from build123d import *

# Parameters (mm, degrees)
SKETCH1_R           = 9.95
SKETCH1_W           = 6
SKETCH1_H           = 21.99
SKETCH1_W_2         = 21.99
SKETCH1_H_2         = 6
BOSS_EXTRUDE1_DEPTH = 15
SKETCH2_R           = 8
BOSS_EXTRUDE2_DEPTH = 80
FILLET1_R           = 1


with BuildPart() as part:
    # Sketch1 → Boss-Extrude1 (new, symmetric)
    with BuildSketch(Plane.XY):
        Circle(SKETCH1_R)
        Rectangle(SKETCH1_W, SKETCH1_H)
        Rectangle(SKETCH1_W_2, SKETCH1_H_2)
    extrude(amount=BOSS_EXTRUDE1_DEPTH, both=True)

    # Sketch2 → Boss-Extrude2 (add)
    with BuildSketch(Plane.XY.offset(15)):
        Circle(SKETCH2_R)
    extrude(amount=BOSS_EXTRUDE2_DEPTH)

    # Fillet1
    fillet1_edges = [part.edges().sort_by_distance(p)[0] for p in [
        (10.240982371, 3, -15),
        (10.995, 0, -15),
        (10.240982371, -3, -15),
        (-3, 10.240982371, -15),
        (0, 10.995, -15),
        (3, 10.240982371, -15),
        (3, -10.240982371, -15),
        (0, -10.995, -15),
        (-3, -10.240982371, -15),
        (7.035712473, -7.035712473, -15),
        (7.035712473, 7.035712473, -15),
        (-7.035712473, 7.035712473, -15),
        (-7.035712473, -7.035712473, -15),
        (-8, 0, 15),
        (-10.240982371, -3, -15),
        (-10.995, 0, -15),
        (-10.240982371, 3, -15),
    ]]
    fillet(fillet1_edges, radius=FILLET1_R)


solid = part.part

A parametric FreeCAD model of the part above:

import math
import FreeCAD as App
import Part
import Sketcher

V = App.Vector
Q = App.Units.Quantity


def edges_at(feature, points):
    """Names of the edges that pass closest to the given points."""
    edges = feature.Shape.Edges
    near = lambda p: min(range(len(edges)), key=lambda i: edges[i].distToShape(Part.Vertex(*p))[0])
    return sorted({f"Edge{near(p) + 1}" for p in points})

doc = App.newDocument("Part")
body = doc.addObject("PartDesign::Body", "Body")

sketch1 = doc.addObject("Sketcher::SketchObject", "Sketch")
body.addObject(sketch1)
sketch1.AttachmentSupport = (doc.XY_Plane, [""])
sketch1.MapMode = "FlatFace"
sketch1.addGeometry(Part.LineSegment(V(3, -10.995, 0), V(3, -9.486965, 0)), False)
sketch1.addGeometry(Part.ArcOfCircle(Part.Circle(V(0, 0, 0), V(0, 0, 1), 9.95), math.radians(-72.451828), math.radians(-17.548172)), False)
sketch1.addGeometry(Part.LineSegment(V(9.486965, -3, 0), V(10.995, -3, 0)), False)
sketch1.addGeometry(Part.LineSegment(V(10.995, -3, 0), V(10.995, 3, 0)), False)
sketch1.addGeometry(Part.LineSegment(V(10.995, 3, 0), V(9.486965, 3, 0)), False)
sketch1.addGeometry(Part.ArcOfCircle(Part.Circle(V(0, 0, 0), V(0, 0, 1), 9.95), math.radians(17.548172), math.radians(72.451828)), False)
sketch1.addGeometry(Part.LineSegment(V(3, 9.486965, 0), V(3, 10.995, 0)), False)
sketch1.addGeometry(Part.LineSegment(V(3, 10.995, 0), V(-3, 10.995, 0)), False)
sketch1.addGeometry(Part.LineSegment(V(-3, 10.995, 0), V(-3, 9.486965, 0)), False)
sketch1.addGeometry(Part.ArcOfCircle(Part.Circle(V(0, 0, 0), V(0, 0, 1), 9.95), math.radians(107.548172), math.radians(162.451828)), False)
sketch1.addGeometry(Part.LineSegment(V(-9.486965, 3, 0), V(-10.995, 3, 0)), False)
sketch1.addGeometry(Part.LineSegment(V(-10.995, 3, 0), V(-10.995, -3, 0)), False)
sketch1.addGeometry(Part.LineSegment(V(-10.995, -3, 0), V(-9.486965, -3, 0)), False)
sketch1.addGeometry(Part.ArcOfCircle(Part.Circle(V(0, 0, 0), V(0, 0, 1), 9.95), math.radians(-162.451828), math.radians(-107.548172)), False)
sketch1.addGeometry(Part.LineSegment(V(-3, -9.486965, 0), V(-3, -10.995, 0)), False)
sketch1.addGeometry(Part.LineSegment(V(-3, -10.995, 0), V(3, -10.995, 0)), False)
sketch1.addConstraint(Sketcher.Constraint("Coincident", 0, 2, 1, 1))
sketch1.addConstraint(Sketcher.Constraint("Coincident", 1, 2, 2, 1))
sketch1.addConstraint(Sketcher.Constraint("Coincident", 2, 2, 3, 1))
sketch1.addConstraint(Sketcher.Constraint("Coincident", 3, 2, 4, 1))
sketch1.addConstraint(Sketcher.Constraint("Coincident", 4, 2, 5, 1))
sketch1.addConstraint(Sketcher.Constraint("Coincident", 5, 2, 6, 1))
sketch1.addConstraint(Sketcher.Constraint("Coincident", 6, 2, 7, 1))
sketch1.addConstraint(Sketcher.Constraint("Coincident", 7, 2, 8, 1))
sketch1.addConstraint(Sketcher.Constraint("Coincident", 8, 2, 9, 1))
sketch1.addConstraint(Sketcher.Constraint("Coincident", 9, 2, 10, 1))
sketch1.addConstraint(Sketcher.Constraint("Coincident", 10, 2, 11, 1))
sketch1.addConstraint(Sketcher.Constraint("Coincident", 11, 2, 12, 1))
sketch1.addConstraint(Sketcher.Constraint("Coincident", 12, 2, 13, 1))
sketch1.addConstraint(Sketcher.Constraint("Coincident", 13, 2, 14, 1))
sketch1.addConstraint(Sketcher.Constraint("Coincident", 14, 2, 15, 1))
sketch1.addConstraint(Sketcher.Constraint("Coincident", 15, 2, 0, 1))
sketch1.addConstraint(Sketcher.Constraint("Vertical", 0))
sketch1.addConstraint(Sketcher.Constraint("Horizontal", 2))
sketch1.addConstraint(Sketcher.Constraint("Vertical", 3))
sketch1.addConstraint(Sketcher.Constraint("Horizontal", 4))
sketch1.addConstraint(Sketcher.Constraint("Vertical", 6))
sketch1.addConstraint(Sketcher.Constraint("Horizontal", 7))
sketch1.addConstraint(Sketcher.Constraint("Vertical", 8))
sketch1.addConstraint(Sketcher.Constraint("Horizontal", 10))
sketch1.addConstraint(Sketcher.Constraint("Vertical", 11))
sketch1.addConstraint(Sketcher.Constraint("Horizontal", 12))
sketch1.addConstraint(Sketcher.Constraint("Vertical", 14))
sketch1.addConstraint(Sketcher.Constraint("Horizontal", 15))
sketch1.addConstraint(Sketcher.Constraint("Coincident", 1, 3, -1, 1))
sketch1.addConstraint(Sketcher.Constraint("Coincident", 5, 3, -1, 1))
sketch1.addConstraint(Sketcher.Constraint("Coincident", 9, 3, -1, 1))
sketch1.addConstraint(Sketcher.Constraint("Coincident", 13, 3, -1, 1))
sketch1.addConstraint(Sketcher.Constraint("Equal", 1, 5))
sketch1.addConstraint(Sketcher.Constraint("Equal", 5, 9))
sketch1.addConstraint(Sketcher.Constraint("Equal", 9, 13))
sketch1.addConstraint(Sketcher.Constraint("Symmetric", 2, 2, 10, 2, -1, 1))
sketch1.addConstraint(Sketcher.Constraint("Symmetric", 6, 2, 14, 2, -1, 1))
sketch1.addConstraint(Sketcher.Constraint("Horizontal", 5, 2, 8, 2))
sketch1.addConstraint(Sketcher.Constraint("Horizontal", 4, 2, 9, 2))
sketch1.addConstraint(Sketcher.Constraint("Horizontal", 2, 2, 11, 2))
sketch1.addConstraint(Sketcher.Constraint("Horizontal", 0, 2, 13, 2))
sketch1.addConstraint(Sketcher.Constraint("Equal", 12, 0))
sketch1.addConstraint(Sketcher.Constraint("Equal", 15, 3))
sketch1.addConstraint(Sketcher.Constraint("DistanceX", 7, 2, 7, 1, Q("6 mm")))
sketch1.addConstraint(Sketcher.Constraint("Radius", 1, Q("9.95 mm")))
sketch1.addConstraint(Sketcher.Constraint("DistanceX", -1, 1, 2, 2, Q("10.995 mm")))
pad1 = doc.addObject("PartDesign::Pad", "Pad")
body.addObject(pad1)
pad1.Profile = sketch1
pad1.Length = 30
pad1.Midplane = True

sketch2 = doc.addObject("Sketcher::SketchObject", "Sketch001")
body.addObject(sketch2)
sketch2.AttachmentSupport = (doc.XY_Plane, [""])
sketch2.MapMode = "FlatFace"
sketch2.AttachmentOffset = App.Placement(V(0, 0, 15), App.Rotation())
sketch2.addGeometry(Part.Circle(V(0, 0, 0), V(0, 0, 1), 8), False)
sketch2.addConstraint(Sketcher.Constraint("Coincident", 0, 3, -1, 1))
sketch2.addConstraint(Sketcher.Constraint("Diameter", 0, Q("16 mm")))
pad2 = doc.addObject("PartDesign::Pad", "Pad001")
body.addObject(pad2)
pad2.Profile = sketch2
pad2.Length = 80
doc.recompute()

fillet = doc.addObject("PartDesign::Fillet", "Fillet")
body.addObject(fillet)
fillet.Base = (pad2, edges_at(pad2, [
    (10.241, 3, -15),
    (10.995, 0, -15),
    (10.241, -3, -15),
    (-3, 10.241, -15),
    (0, 10.995, -15),
    (3, 10.241, -15),
    (3, -10.241, -15),
    (0, -10.995, -15),
    (-3, -10.241, -15),
    (7.036, -7.036, -15),
    (7.036, 7.036, -15),
    (-7.036, 7.036, -15),
    (-7.036, -7.036, -15),
    (-8, 0, 15),
    (-10.241, -3, -15),
    (-10.995, 0, -15),
    (-10.241, 3, -15),
]))
fillet.Radius = 1

doc.recompute()
